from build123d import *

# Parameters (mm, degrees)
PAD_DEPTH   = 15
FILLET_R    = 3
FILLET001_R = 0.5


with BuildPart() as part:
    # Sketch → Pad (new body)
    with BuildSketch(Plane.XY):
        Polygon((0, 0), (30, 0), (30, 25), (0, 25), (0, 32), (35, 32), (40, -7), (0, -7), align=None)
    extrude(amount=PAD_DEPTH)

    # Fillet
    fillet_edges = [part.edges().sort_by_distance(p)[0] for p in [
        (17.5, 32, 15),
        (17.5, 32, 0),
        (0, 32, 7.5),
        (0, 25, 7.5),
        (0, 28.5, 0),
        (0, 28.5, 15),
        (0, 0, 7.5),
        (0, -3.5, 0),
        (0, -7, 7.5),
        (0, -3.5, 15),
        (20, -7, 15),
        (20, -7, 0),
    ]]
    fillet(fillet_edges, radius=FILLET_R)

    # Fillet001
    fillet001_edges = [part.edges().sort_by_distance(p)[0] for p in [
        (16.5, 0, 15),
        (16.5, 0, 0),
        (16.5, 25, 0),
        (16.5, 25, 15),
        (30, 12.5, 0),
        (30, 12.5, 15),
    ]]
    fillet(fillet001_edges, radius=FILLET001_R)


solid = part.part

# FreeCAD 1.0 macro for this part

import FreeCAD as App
import Part
import Sketcher
from FreeCAD import Vector


def edges_at(feature, points):
    """Names of the edges that pass closest to the given points."""
    edges = feature.Shape.Edges
    near = lambda p: min(range(len(edges)), key=lambda i: edges[i].distToShape(Part.Vertex(*p))[0])
    return sorted({f"Edge{near(p) + 1}" for p in points})


def add_polygon(sketch, points):
    """Adds a closed chain of lines whose ends are joined by coincident constraints."""
    first, n = sketch.GeometryCount, len(points)
    for a, b in zip(points, points[1:] + points[:1]):
        sketch.addGeometry(Part.LineSegment(App.Vector(*a, 0), App.Vector(*b, 0)), False)
    for i in range(n):
        sketch.addConstraint(Sketcher.Constraint("Coincident", first + i, 2, first + (i + 1) % n, 1))

doc = App.newDocument("Part")
body = doc.addObject("PartDesign::Body", "Body")

sketch1 = doc.addObject("Sketcher::SketchObject", "Sketch")
body.addObject(sketch1)
sketch1.AttachmentSupport = (doc.XY_Plane, [""])
sketch1.MapMode = "FlatFace"
add_polygon(sketch1, [(30, 0), (0, 0), (0, -7), (40, -7), (35, 32), (0, 32), (0, 25), (30, 25)])
sketch1.addConstraint([
    Sketcher.Constraint("Horizontal", 0),
    Sketcher.Constraint("Vertical", 1),
    Sketcher.Constraint("Horizontal", 2),
    Sketcher.Constraint("Horizontal", 4),
    Sketcher.Constraint("Vertical", 5),
    Sketcher.Constraint("Horizontal", 6),
    Sketcher.Constraint("Vertical", 7),
    Sketcher.Constraint("Coincident", 0, 2, -1, 1),
    Sketcher.Constraint("PointOnObject", 4, 2, -2),
    Sketcher.Constraint("Equal", 1, 5),
    Sketcher.Constraint("DistanceX", 0, 2, 0, 1, 30.0),
    Sketcher.Constraint("DistanceX", 2, 1, 2, 2, 40.0),
    Sketcher.Constraint("DistanceX", 4, 2, 4, 1, 35.0),
    Sketcher.Constraint("DistanceY", 1, 2, 1, 1, 7.0),
    Sketcher.Constraint("DistanceY", 7, 2, 7, 1, 25.0),
])
pad1 = doc.addObject("PartDesign::Pad", "Pad")
body.addObject(pad1)
pad1.Profile = sketch1
pad1.Length = 15
doc.recompute()

fillet = doc.addObject("PartDesign::Fillet", "Fillet")
body.addObject(fillet)
fillet.Base = (pad1, edges_at(pad1, [
    (17.5, 32, 15),
    (17.5, 32, 0),
    (0, 32, 7.5),
    (0, 25, 7.5),
    (0, 28.5, 0),
    (0, 28.5, 15),
    (0, 0, 7.5),
    (0, -3.5, 0),
    (0, -7, 7.5),
    (0, -3.5, 15),
    (20, -7, 15),
    (20, -7, 0),
]))
fillet.Radius = 3
doc.recompute()

fillet2 = doc.addObject("PartDesign::Fillet", "Fillet001")
body.addObject(fillet2)
fillet2.Base = (fillet, edges_at(fillet, [
    (16.5, 0, 15),
    (16.5, 0, 0),
    (16.5, 25, 0),
    (16.5, 25, 15),
    (30, 12.5, 0),
    (30, 12.5, 15),
]))
fillet2.Radius = 0.5

doc.recompute()
